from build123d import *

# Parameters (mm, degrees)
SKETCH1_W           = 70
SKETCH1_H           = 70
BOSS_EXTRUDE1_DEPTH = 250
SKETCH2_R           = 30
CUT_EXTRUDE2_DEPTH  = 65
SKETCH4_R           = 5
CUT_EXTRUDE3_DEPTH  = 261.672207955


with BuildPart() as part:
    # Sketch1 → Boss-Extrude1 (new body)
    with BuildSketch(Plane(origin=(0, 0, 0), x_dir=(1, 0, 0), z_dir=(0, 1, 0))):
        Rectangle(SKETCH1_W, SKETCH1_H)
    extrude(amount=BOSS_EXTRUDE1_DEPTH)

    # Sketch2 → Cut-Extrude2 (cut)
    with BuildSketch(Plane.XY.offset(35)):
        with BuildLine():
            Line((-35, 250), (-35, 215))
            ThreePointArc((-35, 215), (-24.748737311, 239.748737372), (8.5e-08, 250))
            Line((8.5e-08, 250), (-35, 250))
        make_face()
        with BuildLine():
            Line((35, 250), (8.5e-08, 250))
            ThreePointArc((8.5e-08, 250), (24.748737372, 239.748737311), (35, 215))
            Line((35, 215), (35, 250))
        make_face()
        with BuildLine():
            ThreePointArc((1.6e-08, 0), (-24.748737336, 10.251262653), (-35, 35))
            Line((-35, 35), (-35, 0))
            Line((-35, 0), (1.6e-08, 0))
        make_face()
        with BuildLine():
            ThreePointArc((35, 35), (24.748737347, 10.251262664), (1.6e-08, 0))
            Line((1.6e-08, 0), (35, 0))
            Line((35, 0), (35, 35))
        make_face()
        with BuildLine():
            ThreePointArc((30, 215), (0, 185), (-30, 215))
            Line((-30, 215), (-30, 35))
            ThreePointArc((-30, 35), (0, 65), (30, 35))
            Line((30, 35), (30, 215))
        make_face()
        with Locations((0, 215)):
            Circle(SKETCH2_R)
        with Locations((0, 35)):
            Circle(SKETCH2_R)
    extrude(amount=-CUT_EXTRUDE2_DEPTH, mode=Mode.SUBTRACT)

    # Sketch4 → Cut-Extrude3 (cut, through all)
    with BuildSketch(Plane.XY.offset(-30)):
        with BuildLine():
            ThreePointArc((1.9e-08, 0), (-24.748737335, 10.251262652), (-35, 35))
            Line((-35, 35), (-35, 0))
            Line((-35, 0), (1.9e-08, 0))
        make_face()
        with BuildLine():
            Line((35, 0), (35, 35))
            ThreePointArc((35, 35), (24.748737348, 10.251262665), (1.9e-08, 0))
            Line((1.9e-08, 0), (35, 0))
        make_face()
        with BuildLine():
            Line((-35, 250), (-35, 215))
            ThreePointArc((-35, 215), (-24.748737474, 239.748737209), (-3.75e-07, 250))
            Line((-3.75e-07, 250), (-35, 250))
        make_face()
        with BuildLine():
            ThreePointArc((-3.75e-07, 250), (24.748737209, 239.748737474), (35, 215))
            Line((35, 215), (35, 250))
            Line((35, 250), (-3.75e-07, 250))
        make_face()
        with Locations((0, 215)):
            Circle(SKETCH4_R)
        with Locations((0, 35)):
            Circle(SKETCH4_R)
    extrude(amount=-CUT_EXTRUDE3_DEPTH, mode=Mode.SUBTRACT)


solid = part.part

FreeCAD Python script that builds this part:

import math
import FreeCAD as App
import Part
import Sketcher
from FreeCAD import Vector
Q = App.Units.Quantity


def add_polygon(sketch, points):
    """Adds a closed chain of lines whose ends are joined by coincident constraints."""
    first, n = sketch.GeometryCount, len(points)
    for a, b in zip(points, points[1:] + points[:1]):
        sketch.addGeometry(Part.LineSegment(App.Vector(*a, 0), App.Vector(*b, 0)), False)
    for i in range(n):
        sketch.addConstraint(Sketcher.Constraint("Coincident", first + i, 2, first + (i + 1) % n, 1))

doc = App.newDocument("Part")
params = doc.addObject("Spreadsheet::Sheet", "Params")
for row, (alias, value) in enumerate([
    ("sketch1_width", "70 mm"),
    ("pad1_length", "250 mm"),
    ("sketch2_radius", "35 mm"),
    ("sketch2_radius2", "30 mm"),
    ("sketch2_height", "180 mm"),
    ("pocket1_length", "65 mm"),
    ("sketch3_diameter", "10 mm"),
    ("sketch3_radius", "35 mm"),
], start=1):
    params.set(f"A{row}", alias)
    params.set(f"B{row}", "=" + value)
    params.setAlias(f"B{row}", alias)

body = doc.addObject("PartDesign::Body", "Body")

sketch1 = doc.addObject("Sketcher::SketchObject", "Sketch")
body.addObject(sketch1)
sketch1.AttachmentSupport = (doc.XZ_Plane, [""])
sketch1.MapMode = "FlatFace"
add_polygon(sketch1, [(-35, -35), (-35, 35), (35, 35), (35, -35)])
sketch1.addConstraint([
    Sketcher.Constraint("Vertical", 0),
    Sketcher.Constraint("Horizontal", 1),
    Sketcher.Constraint("Vertical", 2),
    Sketcher.Constraint("Horizontal", 3),
    Sketcher.Constraint("Symmetric", 0, 2, 2, 2, -1, 1),
    Sketcher.Constraint("Equal", 3, 0),
    Sketcher.Constraint("DistanceX", 1, 1, 1, 2, Q("70 mm")),
])
sketch1.setExpression("Constraints[10]", "Params.sketch1_width")
pad1 = doc.addObject("PartDesign::Pad", "Pad")
body.addObject(pad1)
pad1.Profile = sketch1
pad1.setExpression("Length", "Params.pad1_length")
pad1.Reversed = True

sketch2 = doc.addObject("Sketcher::SketchObject", "Sketch001")
body.addObject(sketch2)
sketch2.AttachmentSupport = (doc.XY_Plane, [""])
sketch2.MapMode = "FlatFace"
sketch2.AttachmentOffset = App.Placement(Vector(0, 0, 35), App.Rotation())
sketch2.addGeometry([
    Part.LineSegment(Vector(-35, 250, 0), Vector(-35, 215, 0)),
    Part.ArcOfCircle(Part.Circle(Vector(0, 215, 0), Vector(0, 0, 1), 35), math.radians(90), math.radians(180)),
    Part.LineSegment(Vector(0, 250, 0), Vector(-35, 250, 0)),
    Part.LineSegment(Vector(35, 250, 0), Vector(0, 250, 0)),
    Part.ArcOfCircle(Part.Circle(Vector(0, 215, 0), Vector(0, 0, 1), 35), math.radians(0), math.radians(90)),
    Part.LineSegment(Vector(35, 215, 0), Vector(35, 250, 0)),
    Part.ArcOfCircle(Part.Circle(Vector(0, 35, 0), Vector(0, 0, 1), 35), math.radians(180), math.radians(270)),
    Part.LineSegment(Vector(-35, 35, 0), Vector(-35, 0, 0)),
    Part.LineSegment(Vector(-35, 0, 0), Vector(0, 0, 0)),
    Part.ArcOfCircle(Part.Circle(Vector(0, 35, 0), Vector(0, 0, 1), 35), math.radians(-90), math.radians(0)),
    Part.LineSegment(Vector(0, 0, 0), Vector(35, 0, 0)),
    Part.LineSegment(Vector(35, 0, 0), Vector(35, 35, 0)),
    Part.LineSegment(Vector(-30, 215, 0), Vector(-30, 35, 0)),
    Part.ArcOfCircle(Part.Circle(Vector(0, 35, 0), Vector(0, 0, 1), 30), math.radians(180), math.radians(360)),
    Part.LineSegment(Vector(30, 35, 0), Vector(30, 215, 0)),
    Part.ArcOfCircle(Part.Circle(Vector(0, 215, 0), Vector(0, 0, 1), 30), math.radians(0), math.radians(180)),
], False)
sketch2.addConstraint([
    Sketcher.Constraint("Tangent", 0, 2, 1, 2),
    Sketcher.Constraint("Tangent", 1, 1, 2, 1),
    Sketcher.Constraint("Coincident", 2, 2, 0, 1),
    Sketcher.Constraint("Tangent", 3, 2, 4, 2),
    Sketcher.Constraint("Tangent", 4, 1, 5, 1),
    Sketcher.Constraint("Coincident", 5, 2, 3, 1),
    Sketcher.Constraint("Tangent", 6, 1, 7, 1),
    Sketcher.Constraint("Coincident", 7, 2, 8, 1),
    Sketcher.Constraint("Tangent", 8, 2, 6, 2),
    Sketcher.Constraint("Tangent", 9, 1, 10, 1),
    Sketcher.Constraint("Coincident", 10, 2, 11, 1),
    Sketcher.Constraint("Tangent", 11, 2, 9, 2),
    Sketcher.Constraint("Tangent", 12, 2, 13, 1),
    Sketcher.Constraint("Tangent", 13, 2, 14, 1),
    Sketcher.Constraint("Tangent", 14, 2, 15, 1),
    Sketcher.Constraint("Tangent", 15, 2, 12, 1),
    Sketcher.Constraint("Vertical", 0),
    Sketcher.Constraint("Horizontal", 2),
    Sketcher.Constraint("Horizontal", 3),
    Sketcher.Constraint("Vertical", 5),
    Sketcher.Constraint("Vertical", 7),
    Sketcher.Constraint("Horizontal", 8),
    Sketcher.Constraint("Horizontal", 10),
    Sketcher.Constraint("Vertical", 11),
    Sketcher.Constraint("Vertical", 12),
    Sketcher.Constraint("Vertical", 14),
    Sketcher.Constraint("Coincident", 8, 2, -1, 1),
    Sketcher.Constraint("Coincident", 9, 1, -1, 1),
    Sketcher.Constraint("Coincident", 4, 3, 1, 3),
    Sketcher.Constraint("Coincident", 13, 3, 6, 3),
    Sketcher.Constraint("Coincident", 15, 3, 1, 3),
    Sketcher.Constraint("Equal", 1, 4),
    Sketcher.Constraint("Equal", 4, 6),
    Sketcher.Constraint("Equal", 6, 9),
    Sketcher.Constraint("Radius", 1, Q("35 mm")),
    Sketcher.Constraint("Radius", 13, Q("30 mm")),
    Sketcher.Constraint("DistanceY", 12, 2, 12, 1, Q("180 mm")),
])
sketch2.setExpression("Constraints[34]", "Params.sketch2_radius")
sketch2.setExpression("Constraints[35]", "Params.sketch2_radius2")
sketch2.setExpression("Constraints[36]", "Params.sketch2_height")
pocket1 = doc.addObject("PartDesign::Pocket", "Pocket")
body.addObject(pocket1)
pocket1.Profile = sketch2
pocket1.setExpression("Length", "Params.pocket1_length")

sketch3 = doc.addObject("Sketcher::SketchObject", "Sketch002")
body.addObject(sketch3)
sketch3.AttachmentSupport = (doc.XY_Plane, [""])
sketch3.MapMode = "FlatFace"
sketch3.AttachmentOffset = App.Placement(Vector(0, 0, -30), App.Rotation())
sketch3.addGeometry([
    Part.ArcOfCircle(Part.Circle(Vector(0, 35, 0), Vector(0, 0, 1), 35), math.radians(180), math.radians(270)),
    Part.LineSegment(Vector(-35, 35, 0), Vector(-35, 0, 0)),
    Part.LineSegment(Vector(-35, 0, 0), Vector(0, 0, 0)),
    Part.LineSegment(Vector(35, 0, 0), Vector(35, 35, 0)),
    Part.ArcOfCircle(Part.Circle(Vector(0, 35, 0), Vector(0, 0, 1), 35), math.radians(-90), math.radians(0)),
    Part.LineSegment(Vector(0, 0, 0), Vector(35, 0, 0)),
    Part.LineSegment(Vector(-35, 250, 0), Vector(-35, 215, 0)),
    Part.ArcOfCircle(Part.Circle(Vector(0, 215, 0), Vector(0, 0, 1), 35), math.radians(90), math.radians(180)),
    Part.LineSegment(Vector(0, 250, 0), Vector(-35, 250, 0)),
    Part.ArcOfCircle(Part.Circle(Vector(0, 215, 0), Vector(0, 0, 1), 35), math.radians(0), math.radians(90)),
    Part.LineSegment(Vector(35, 215, 0), Vector(35, 250, 0)),
    Part.LineSegment(Vector(35, 250, 0), Vector(0, 250, 0)),
    Part.Circle(Vector(0, 215, 0), Vector(0, 0, 1), 5),
    Part.Circle(Vector(0, 35, 0), Vector(0, 0, 1), 5),
], False)
sketch3.addConstraint([
    Sketcher.Constraint("Tangent", 0, 1, 1, 1),
    Sketcher.Constraint("Coincident", 1, 2, 2, 1),
    Sketcher.Constraint("Tangent", 2, 2, 0, 2),
    Sketcher.Constraint("Tangent", 3, 2, 4, 2),
    Sketcher.Constraint("Tangent", 4, 1, 5, 1),
    Sketcher.Constraint("Coincident", 5, 2, 3, 1),
    Sketcher.Constraint("Tangent", 6, 2, 7, 2),
    Sketcher.Constraint("Tangent", 7, 1, 8, 1),
    Sketcher.Constraint("Coincident", 8, 2, 6, 1),
    Sketcher.Constraint("Tangent", 9, 1, 10, 1),
    Sketcher.Constraint("Coincident", 10, 2, 11, 1),
    Sketcher.Constraint("Tangent", 11, 2, 9, 2),
    Sketcher.Constraint("Vertical", 1),
    Sketcher.Constraint("Horizontal", 2),
    Sketcher.Constraint("Vertical", 3),
    Sketcher.Constraint("Horizontal", 5),
    Sketcher.Constraint("Vertical", 6),
    Sketcher.Constraint("Horizontal", 8),
    Sketcher.Constraint("Vertical", 10),
    Sketcher.Constraint("Horizontal", 11),
    Sketcher.Constraint("Coincident", 2, 2, -1, 1),
    Sketcher.Constraint("Coincident", 4, 1, -1, 1),
    Sketcher.Constraint("Coincident", 9, 3, 7, 3),
    Sketcher.Constraint("Coincident", 12, 3, 7, 3),
    Sketcher.Constraint("Coincident", 13, 3, 0, 3),
    Sketcher.Constraint("Equal", 0, 4),
    Sketcher.Constraint("Equal", 4, 7),
    Sketcher.Constraint("Equal", 7, 9),
    Sketcher.Constraint("Equal", 12, 13),
    Sketcher.Constraint("PointOnObject", 7, 3, -2),
    Sketcher.Constraint("Diameter", 12, Q("10 mm")),
    Sketcher.Constraint("Radius", 0, Q("35 mm")),
    Sketcher.Constraint("DistanceY", -1, 1, 7, 3, Q("215 mm")),
])
sketch3.setExpression("Constraints[30]", "Params.sketch3_diameter")
sketch3.setExpression("Constraints[31]", "Params.sketch3_radius")
pocket2 = doc.addObject("PartDesign::Pocket", "Pocket001")
body.addObject(pocket2)
pocket2.Profile = sketch3
pocket2.Type = "ThroughAll"

doc.recompute()
